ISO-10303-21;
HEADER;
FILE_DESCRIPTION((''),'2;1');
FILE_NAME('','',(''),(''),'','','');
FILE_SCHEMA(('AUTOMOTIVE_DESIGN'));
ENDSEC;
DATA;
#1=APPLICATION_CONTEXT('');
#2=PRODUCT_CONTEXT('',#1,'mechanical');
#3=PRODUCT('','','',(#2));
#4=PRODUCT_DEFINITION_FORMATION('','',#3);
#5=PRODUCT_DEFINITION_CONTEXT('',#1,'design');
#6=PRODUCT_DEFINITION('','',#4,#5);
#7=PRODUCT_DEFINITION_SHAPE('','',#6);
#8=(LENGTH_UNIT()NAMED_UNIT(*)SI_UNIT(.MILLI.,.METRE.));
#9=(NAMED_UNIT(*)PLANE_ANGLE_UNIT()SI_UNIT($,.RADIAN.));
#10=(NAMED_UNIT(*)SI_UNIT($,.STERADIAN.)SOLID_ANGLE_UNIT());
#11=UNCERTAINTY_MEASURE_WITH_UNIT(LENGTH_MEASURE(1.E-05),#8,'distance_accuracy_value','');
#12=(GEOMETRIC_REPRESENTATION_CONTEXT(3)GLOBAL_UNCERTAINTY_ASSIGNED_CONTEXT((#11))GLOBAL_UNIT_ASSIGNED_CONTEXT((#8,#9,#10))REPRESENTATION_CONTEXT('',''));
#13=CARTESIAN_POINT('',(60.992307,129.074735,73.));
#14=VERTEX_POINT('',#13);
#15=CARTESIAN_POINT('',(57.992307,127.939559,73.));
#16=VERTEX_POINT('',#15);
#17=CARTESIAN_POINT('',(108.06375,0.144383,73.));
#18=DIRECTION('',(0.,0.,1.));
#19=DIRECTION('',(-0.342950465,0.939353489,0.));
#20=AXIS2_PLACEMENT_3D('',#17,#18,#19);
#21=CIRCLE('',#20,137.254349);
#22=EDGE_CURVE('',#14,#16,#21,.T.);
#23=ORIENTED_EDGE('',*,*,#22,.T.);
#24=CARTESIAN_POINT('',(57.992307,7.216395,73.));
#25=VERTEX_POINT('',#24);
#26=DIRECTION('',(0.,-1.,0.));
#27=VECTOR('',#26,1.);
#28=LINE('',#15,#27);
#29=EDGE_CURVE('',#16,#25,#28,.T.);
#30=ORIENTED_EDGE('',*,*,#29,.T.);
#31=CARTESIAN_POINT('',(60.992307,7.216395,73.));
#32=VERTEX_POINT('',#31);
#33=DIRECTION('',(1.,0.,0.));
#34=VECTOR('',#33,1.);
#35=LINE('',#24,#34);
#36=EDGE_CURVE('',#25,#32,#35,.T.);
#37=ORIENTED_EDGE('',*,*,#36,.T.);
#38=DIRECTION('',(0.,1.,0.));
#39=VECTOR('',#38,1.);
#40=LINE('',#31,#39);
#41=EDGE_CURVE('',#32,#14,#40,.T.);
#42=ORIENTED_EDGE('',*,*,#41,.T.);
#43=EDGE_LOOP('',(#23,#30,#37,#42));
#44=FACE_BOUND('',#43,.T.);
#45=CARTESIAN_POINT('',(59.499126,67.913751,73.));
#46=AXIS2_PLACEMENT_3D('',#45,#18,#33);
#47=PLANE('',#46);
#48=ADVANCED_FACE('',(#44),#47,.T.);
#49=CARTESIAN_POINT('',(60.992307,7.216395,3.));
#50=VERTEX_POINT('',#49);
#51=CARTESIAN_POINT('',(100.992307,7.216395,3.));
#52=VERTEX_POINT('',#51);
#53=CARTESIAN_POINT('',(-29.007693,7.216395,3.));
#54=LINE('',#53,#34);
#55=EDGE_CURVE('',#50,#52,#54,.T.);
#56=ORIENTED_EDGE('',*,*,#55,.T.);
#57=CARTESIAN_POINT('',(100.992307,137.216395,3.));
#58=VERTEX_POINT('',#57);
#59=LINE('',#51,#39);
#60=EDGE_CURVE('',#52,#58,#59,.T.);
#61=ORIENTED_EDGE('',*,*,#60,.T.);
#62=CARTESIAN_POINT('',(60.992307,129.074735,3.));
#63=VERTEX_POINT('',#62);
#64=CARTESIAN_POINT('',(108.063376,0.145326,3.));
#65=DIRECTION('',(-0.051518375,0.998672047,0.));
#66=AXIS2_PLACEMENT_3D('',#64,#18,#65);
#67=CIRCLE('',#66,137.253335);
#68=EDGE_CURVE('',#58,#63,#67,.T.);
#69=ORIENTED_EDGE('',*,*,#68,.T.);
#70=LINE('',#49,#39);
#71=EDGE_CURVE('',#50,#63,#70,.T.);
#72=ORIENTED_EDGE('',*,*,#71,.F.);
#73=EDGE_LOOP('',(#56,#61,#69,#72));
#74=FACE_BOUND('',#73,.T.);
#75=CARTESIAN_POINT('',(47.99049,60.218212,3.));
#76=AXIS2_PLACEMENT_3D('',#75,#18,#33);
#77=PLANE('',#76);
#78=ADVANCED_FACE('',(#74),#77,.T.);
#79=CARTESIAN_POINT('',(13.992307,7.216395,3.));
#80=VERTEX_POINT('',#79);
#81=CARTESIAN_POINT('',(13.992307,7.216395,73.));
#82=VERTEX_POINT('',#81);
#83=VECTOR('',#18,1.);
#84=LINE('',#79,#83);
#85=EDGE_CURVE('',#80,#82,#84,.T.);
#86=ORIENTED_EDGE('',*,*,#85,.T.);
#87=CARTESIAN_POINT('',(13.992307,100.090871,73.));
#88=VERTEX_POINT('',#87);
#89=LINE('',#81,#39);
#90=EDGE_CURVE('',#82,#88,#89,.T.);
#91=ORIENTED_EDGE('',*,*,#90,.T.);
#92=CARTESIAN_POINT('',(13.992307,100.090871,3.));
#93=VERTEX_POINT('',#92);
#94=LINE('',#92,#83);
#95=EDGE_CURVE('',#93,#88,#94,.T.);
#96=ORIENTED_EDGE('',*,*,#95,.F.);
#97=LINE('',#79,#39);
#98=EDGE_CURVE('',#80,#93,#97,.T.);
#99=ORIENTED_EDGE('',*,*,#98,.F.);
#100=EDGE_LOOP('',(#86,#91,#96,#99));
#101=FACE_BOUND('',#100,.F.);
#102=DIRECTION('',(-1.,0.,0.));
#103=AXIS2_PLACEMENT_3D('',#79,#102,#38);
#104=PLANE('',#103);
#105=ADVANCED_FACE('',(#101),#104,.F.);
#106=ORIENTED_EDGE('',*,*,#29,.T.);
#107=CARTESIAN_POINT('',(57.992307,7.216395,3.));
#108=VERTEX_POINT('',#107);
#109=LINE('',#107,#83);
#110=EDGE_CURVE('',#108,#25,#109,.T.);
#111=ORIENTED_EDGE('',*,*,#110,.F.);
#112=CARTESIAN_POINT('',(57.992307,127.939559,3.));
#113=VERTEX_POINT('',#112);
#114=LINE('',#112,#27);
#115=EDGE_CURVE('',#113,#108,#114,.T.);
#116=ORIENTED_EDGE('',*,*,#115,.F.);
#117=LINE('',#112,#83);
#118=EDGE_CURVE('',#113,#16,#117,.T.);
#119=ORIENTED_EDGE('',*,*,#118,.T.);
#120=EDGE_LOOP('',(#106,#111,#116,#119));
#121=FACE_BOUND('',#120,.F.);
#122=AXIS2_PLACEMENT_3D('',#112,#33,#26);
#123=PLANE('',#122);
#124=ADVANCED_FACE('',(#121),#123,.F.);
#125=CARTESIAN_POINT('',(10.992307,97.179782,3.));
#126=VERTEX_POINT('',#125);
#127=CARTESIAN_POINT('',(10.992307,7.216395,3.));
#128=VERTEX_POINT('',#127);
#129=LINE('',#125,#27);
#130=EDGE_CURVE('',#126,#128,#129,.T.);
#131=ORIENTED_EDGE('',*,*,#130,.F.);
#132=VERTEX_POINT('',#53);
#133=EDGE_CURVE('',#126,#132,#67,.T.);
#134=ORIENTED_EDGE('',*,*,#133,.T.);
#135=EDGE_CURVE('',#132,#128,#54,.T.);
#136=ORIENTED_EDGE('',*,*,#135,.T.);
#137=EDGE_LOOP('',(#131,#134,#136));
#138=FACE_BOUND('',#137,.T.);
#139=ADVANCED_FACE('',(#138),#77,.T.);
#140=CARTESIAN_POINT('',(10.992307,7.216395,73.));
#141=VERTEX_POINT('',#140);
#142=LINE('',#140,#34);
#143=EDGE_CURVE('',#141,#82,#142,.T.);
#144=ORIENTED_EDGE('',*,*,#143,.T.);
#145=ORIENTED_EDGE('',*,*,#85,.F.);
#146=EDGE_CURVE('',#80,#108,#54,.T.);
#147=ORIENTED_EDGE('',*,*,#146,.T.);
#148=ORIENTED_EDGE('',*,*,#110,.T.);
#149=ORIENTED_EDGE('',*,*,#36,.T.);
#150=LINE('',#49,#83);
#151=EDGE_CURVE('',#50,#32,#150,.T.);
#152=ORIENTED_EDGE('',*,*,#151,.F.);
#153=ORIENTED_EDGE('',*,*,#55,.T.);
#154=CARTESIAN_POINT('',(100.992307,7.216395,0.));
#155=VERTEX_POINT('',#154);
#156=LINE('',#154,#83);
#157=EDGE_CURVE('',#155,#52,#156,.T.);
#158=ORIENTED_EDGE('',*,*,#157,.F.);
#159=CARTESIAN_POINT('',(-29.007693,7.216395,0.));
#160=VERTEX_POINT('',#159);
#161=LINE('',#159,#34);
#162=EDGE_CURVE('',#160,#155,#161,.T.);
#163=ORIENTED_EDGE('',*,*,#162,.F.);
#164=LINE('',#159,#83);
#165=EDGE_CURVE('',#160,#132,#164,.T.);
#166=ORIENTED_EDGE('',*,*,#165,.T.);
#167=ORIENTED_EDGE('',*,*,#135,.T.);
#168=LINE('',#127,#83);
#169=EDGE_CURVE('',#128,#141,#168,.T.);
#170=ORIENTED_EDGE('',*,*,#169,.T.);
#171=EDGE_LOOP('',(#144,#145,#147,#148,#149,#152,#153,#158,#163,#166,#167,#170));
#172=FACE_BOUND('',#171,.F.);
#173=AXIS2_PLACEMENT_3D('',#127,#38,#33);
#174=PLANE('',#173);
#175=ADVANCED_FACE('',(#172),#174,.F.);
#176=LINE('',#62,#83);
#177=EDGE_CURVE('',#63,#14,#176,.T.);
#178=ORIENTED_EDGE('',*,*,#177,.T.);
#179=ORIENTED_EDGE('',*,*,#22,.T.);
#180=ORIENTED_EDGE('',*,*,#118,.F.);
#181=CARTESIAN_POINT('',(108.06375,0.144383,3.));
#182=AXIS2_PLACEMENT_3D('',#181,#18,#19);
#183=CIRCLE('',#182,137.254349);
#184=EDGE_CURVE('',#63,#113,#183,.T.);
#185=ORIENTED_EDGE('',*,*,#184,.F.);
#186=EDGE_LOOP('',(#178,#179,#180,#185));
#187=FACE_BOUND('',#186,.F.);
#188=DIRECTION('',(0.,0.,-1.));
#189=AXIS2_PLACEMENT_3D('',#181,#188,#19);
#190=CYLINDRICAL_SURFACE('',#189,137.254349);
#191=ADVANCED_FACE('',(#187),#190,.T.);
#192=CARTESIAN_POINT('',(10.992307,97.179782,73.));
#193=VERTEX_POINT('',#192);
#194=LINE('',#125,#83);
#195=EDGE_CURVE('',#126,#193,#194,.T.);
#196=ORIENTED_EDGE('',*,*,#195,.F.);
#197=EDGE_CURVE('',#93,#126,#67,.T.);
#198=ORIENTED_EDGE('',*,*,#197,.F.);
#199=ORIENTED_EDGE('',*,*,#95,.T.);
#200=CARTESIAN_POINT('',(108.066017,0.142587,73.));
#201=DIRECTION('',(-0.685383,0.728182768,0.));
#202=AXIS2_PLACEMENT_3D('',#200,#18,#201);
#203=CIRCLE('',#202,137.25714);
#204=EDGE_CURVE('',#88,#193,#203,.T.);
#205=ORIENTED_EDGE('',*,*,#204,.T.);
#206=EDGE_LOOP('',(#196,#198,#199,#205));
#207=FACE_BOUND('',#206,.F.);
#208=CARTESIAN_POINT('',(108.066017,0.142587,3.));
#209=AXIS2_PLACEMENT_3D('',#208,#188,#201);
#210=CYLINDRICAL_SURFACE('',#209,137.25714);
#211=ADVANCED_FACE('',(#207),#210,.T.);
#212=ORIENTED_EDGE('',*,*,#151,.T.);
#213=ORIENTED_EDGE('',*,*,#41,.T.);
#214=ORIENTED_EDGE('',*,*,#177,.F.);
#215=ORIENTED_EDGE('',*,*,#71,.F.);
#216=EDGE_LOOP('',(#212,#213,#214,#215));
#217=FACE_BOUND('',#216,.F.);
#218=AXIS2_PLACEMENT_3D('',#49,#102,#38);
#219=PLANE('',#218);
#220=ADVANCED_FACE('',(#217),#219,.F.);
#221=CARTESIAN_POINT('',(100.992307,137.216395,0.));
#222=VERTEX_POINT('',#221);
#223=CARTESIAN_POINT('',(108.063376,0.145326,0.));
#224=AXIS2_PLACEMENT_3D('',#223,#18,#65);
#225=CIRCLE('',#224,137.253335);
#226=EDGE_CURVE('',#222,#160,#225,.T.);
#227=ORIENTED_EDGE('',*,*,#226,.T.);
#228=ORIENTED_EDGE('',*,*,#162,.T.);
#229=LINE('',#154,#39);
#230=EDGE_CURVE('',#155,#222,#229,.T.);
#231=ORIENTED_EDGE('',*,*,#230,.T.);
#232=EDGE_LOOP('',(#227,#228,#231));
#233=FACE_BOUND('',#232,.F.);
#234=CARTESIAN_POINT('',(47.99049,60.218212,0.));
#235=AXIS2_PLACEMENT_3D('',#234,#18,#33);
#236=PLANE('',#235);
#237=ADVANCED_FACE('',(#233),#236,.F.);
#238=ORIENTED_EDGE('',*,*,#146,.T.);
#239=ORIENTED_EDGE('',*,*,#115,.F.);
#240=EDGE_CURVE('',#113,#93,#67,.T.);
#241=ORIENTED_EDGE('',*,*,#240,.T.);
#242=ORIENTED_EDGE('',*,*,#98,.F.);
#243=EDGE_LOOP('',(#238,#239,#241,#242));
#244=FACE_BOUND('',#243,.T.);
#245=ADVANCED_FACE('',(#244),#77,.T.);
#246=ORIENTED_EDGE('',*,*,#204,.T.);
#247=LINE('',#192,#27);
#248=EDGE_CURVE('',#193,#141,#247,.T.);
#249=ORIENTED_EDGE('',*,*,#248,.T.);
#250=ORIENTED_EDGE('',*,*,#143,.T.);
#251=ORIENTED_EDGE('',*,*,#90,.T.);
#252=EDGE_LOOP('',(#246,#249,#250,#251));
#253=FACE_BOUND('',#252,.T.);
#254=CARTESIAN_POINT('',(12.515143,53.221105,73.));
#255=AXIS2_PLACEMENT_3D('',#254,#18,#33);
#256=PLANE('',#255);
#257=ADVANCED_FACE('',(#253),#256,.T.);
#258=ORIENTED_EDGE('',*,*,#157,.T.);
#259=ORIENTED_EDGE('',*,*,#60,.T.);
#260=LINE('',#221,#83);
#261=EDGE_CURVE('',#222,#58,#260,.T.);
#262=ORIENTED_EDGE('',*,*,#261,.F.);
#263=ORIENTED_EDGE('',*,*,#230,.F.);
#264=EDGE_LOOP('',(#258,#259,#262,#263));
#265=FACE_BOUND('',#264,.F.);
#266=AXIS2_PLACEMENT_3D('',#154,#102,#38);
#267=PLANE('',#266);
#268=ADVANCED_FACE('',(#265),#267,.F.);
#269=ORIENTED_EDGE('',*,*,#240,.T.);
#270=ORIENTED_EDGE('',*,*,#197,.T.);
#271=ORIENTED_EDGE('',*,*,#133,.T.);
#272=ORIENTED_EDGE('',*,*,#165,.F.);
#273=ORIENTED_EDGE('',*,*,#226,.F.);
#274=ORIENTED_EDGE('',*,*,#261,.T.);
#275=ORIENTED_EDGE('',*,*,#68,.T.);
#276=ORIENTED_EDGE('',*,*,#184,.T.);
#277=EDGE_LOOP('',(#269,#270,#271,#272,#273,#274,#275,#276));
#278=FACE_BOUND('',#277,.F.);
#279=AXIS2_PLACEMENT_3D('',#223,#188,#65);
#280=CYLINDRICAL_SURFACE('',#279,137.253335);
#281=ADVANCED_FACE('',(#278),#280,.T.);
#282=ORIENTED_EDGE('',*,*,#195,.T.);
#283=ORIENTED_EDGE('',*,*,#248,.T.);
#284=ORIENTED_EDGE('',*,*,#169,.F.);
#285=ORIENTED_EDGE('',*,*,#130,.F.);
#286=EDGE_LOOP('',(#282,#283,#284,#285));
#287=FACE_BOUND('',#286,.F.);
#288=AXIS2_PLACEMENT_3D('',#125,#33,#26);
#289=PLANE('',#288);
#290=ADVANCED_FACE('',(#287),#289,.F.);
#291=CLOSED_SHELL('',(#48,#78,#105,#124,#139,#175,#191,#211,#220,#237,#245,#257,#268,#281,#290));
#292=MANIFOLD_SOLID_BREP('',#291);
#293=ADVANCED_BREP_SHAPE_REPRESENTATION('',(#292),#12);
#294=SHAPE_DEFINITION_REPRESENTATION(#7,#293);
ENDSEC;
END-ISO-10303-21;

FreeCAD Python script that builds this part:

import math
import FreeCAD as App
import Part
import Sketcher
from FreeCAD import Vector
Q = App.Units.Quantity

doc = App.newDocument("Part")
params = doc.addObject("Spreadsheet::Sheet", "Params")
for row, (alias, value) in enumerate([
    ("sketch1_width", "130 mm"),
    ("pad1_length", "3 mm"),
    ("sketch2_width", "3 mm"),
    ("pad2_length", "70 mm"),
], start=1):
    params.set(f"A{row}", alias)
    params.set(f"B{row}", "=" + value)
    params.setAlias(f"B{row}", alias)

body = doc.addObject("PartDesign::Body", "Body")

sketch1 = body.newObject("Sketcher::SketchObject", "Sketch")
sketch1.AttachmentSupport = (doc.getObject("XY_Plane"), [""])
sketch1.MapMode = "FlatFace"
sketch1.addGeometry(Part.LineSegment(Vector(101, 7, 0), Vector(101, 137, 0)), False)
sketch1.addGeometry(Part.ArcOfCircle(Part.Circle(Vector(108, 0, 0), Vector(0, 0, 1), 137), math.radians(93), math.radians(177)), False)
sketch1.addGeometry(Part.LineSegment(Vector(-29, 7, 0), Vector(101, 7, 0)), False)
sketch1.addConstraint(Sketcher.Constraint("Coincident", 0, 2, 1, 1))
sketch1.addConstraint(Sketcher.Constraint("Coincident", 1, 2, 2, 1))
sketch1.addConstraint(Sketcher.Constraint("Coincident", 2, 2, 0, 1))
sketch1.addConstraint(Sketcher.Constraint("Vertical", 0))
sketch1.addConstraint(Sketcher.Constraint("Horizontal", 2))
sketch1.addConstraint(Sketcher.Constraint("Equal", 2, 0))
sketch1.addConstraint(Sketcher.Constraint("DistanceX", 2, 1, 2, 2, Q("130 mm")))
sketch1.addConstraint(Sketcher.Constraint("Radius", 1, Q("137.253335 mm")))
sketch1.addConstraint(Sketcher.Constraint("DistanceX", -1, 1, 1, 3, Q("108.063376 mm")))
sketch1.addConstraint(Sketcher.Constraint("DistanceY", -1, 1, 1, 3, Q("0.145326 mm")))
sketch1.setExpression("Constraints[6]", "Params.sketch1_width")
pad1 = body.newObject("PartDesign::Pad", "Pad")
pad1.Profile = sketch1
pad1.setExpression("Length", "Params.pad1_length")

sketch2 = body.newObject("Sketcher::SketchObject", "Sketch001")
sketch2.AttachmentSupport = (doc.getObject("XY_Plane"), [""])
sketch2.MapMode = "FlatFace"
sketch2.AttachmentOffset = App.Placement(Vector(0, 0, 3), App.Rotation())
sketch2.addGeometry(Part.ArcOfCircle(Part.Circle(Vector(108.1, 0.1, 0), Vector(0, 0, 1), 137.3), math.radians(133.27), math.radians(135.01)), False)
sketch2.addGeometry(Part.LineSegment(Vector(11, 97.2, 0), Vector(11, 7.2, 0)), False)
sketch2.addGeometry(Part.LineSegment(Vector(11, 7.2, 0), Vector(14, 7.2, 0)), False)
sketch2.addGeometry(Part.LineSegment(Vector(14, 7.2, 0), Vector(14, 100.1, 0)), False)
sketch2.addGeometry(Part.ArcOfCircle(Part.Circle(Vector(108.1, 0.1, 0), Vector(0, 0, 1), 137.3), math.radians(110.06), math.radians(111.4)), False)
sketch2.addGeometry(Part.LineSegment(Vector(58, 127.9, 0), Vector(58, 7.2, 0)), False)
sketch2.addGeometry(Part.LineSegment(Vector(58, 7.2, 0), Vector(61, 7.2, 0)), False)
sketch2.addGeometry(Part.LineSegment(Vector(61, 7.2, 0), Vector(61, 129.1, 0)), False)
sketch2.addConstraint(Sketcher.Constraint("Coincident", 0, 2, 1, 1))
sketch2.addConstraint(Sketcher.Constraint("Coincident", 1, 2, 2, 1))
sketch2.addConstraint(Sketcher.Constraint("Coincident", 2, 2, 3, 1))
sketch2.addConstraint(Sketcher.Constraint("Coincident", 3, 2, 0, 1))
sketch2.addConstraint(Sketcher.Constraint("Coincident", 4, 2, 5, 1))
sketch2.addConstraint(Sketcher.Constraint("Coincident", 5, 2, 6, 1))
sketch2.addConstraint(Sketcher.Constraint("Coincident", 6, 2, 7, 1))
sketch2.addConstraint(Sketcher.Constraint("Coincident", 7, 2, 4, 1))
sketch2.addConstraint(Sketcher.Constraint("Vertical", 1))
sketch2.addConstraint(Sketcher.Constraint("Horizontal", 2))
sketch2.addConstraint(Sketcher.Constraint("Vertical", 3))
sketch2.addConstraint(Sketcher.Constraint("Vertical", 5))
sketch2.addConstraint(Sketcher.Constraint("Horizontal", 6))
sketch2.addConstraint(Sketcher.Constraint("Vertical", 7))
sketch2.addConstraint(Sketcher.Constraint("Horizontal", 2, 2, 5, 2))
sketch2.addConstraint(Sketcher.Constraint("Equal", 2, 6))
sketch2.addConstraint(Sketcher.Constraint("DistanceX", 2, 1, 2, 2, Q("3 mm")))
sketch2.addConstraint(Sketcher.Constraint("DistanceX", 3, 2, 4, 2, Q("44 mm")))
sketch2.addConstraint(Sketcher.Constraint("Radius", 0, Q("137.25714 mm")))
sketch2.addConstraint(Sketcher.Constraint("Radius", 4, Q("137.254349 mm")))
sketch2.addConstraint(Sketcher.Constraint("DistanceY", 7, 1, 7, 2, Q("121.85834 mm")))
sketch2.addConstraint(Sketcher.Constraint("DistanceY", 4, 3, 0, 2, Q("97.035399 mm")))
sketch2.addConstraint(Sketcher.Constraint("DistanceY", 1, 2, 1, 1, Q("89.963387 mm")))
sketch2.addConstraint(Sketcher.Constraint("DistanceY", 3, 1, 3, 2, Q("92.874476 mm")))
sketch2.addConstraint(Sketcher.Constraint("DistanceX", -1, 1, 4, 3, Q("108.06375 mm")))
sketch2.addConstraint(Sketcher.Constraint("DistanceY", -1, 1, 3, 2, Q("100.090871 mm")))
sketch2.setExpression("Constraints[16]", "Params.sketch2_width")
pad2 = body.newObject("PartDesign::Pad", "Pad001")
pad2.Profile = sketch2
pad2.setExpression("Length", "Params.pad2_length")

doc.recompute()
